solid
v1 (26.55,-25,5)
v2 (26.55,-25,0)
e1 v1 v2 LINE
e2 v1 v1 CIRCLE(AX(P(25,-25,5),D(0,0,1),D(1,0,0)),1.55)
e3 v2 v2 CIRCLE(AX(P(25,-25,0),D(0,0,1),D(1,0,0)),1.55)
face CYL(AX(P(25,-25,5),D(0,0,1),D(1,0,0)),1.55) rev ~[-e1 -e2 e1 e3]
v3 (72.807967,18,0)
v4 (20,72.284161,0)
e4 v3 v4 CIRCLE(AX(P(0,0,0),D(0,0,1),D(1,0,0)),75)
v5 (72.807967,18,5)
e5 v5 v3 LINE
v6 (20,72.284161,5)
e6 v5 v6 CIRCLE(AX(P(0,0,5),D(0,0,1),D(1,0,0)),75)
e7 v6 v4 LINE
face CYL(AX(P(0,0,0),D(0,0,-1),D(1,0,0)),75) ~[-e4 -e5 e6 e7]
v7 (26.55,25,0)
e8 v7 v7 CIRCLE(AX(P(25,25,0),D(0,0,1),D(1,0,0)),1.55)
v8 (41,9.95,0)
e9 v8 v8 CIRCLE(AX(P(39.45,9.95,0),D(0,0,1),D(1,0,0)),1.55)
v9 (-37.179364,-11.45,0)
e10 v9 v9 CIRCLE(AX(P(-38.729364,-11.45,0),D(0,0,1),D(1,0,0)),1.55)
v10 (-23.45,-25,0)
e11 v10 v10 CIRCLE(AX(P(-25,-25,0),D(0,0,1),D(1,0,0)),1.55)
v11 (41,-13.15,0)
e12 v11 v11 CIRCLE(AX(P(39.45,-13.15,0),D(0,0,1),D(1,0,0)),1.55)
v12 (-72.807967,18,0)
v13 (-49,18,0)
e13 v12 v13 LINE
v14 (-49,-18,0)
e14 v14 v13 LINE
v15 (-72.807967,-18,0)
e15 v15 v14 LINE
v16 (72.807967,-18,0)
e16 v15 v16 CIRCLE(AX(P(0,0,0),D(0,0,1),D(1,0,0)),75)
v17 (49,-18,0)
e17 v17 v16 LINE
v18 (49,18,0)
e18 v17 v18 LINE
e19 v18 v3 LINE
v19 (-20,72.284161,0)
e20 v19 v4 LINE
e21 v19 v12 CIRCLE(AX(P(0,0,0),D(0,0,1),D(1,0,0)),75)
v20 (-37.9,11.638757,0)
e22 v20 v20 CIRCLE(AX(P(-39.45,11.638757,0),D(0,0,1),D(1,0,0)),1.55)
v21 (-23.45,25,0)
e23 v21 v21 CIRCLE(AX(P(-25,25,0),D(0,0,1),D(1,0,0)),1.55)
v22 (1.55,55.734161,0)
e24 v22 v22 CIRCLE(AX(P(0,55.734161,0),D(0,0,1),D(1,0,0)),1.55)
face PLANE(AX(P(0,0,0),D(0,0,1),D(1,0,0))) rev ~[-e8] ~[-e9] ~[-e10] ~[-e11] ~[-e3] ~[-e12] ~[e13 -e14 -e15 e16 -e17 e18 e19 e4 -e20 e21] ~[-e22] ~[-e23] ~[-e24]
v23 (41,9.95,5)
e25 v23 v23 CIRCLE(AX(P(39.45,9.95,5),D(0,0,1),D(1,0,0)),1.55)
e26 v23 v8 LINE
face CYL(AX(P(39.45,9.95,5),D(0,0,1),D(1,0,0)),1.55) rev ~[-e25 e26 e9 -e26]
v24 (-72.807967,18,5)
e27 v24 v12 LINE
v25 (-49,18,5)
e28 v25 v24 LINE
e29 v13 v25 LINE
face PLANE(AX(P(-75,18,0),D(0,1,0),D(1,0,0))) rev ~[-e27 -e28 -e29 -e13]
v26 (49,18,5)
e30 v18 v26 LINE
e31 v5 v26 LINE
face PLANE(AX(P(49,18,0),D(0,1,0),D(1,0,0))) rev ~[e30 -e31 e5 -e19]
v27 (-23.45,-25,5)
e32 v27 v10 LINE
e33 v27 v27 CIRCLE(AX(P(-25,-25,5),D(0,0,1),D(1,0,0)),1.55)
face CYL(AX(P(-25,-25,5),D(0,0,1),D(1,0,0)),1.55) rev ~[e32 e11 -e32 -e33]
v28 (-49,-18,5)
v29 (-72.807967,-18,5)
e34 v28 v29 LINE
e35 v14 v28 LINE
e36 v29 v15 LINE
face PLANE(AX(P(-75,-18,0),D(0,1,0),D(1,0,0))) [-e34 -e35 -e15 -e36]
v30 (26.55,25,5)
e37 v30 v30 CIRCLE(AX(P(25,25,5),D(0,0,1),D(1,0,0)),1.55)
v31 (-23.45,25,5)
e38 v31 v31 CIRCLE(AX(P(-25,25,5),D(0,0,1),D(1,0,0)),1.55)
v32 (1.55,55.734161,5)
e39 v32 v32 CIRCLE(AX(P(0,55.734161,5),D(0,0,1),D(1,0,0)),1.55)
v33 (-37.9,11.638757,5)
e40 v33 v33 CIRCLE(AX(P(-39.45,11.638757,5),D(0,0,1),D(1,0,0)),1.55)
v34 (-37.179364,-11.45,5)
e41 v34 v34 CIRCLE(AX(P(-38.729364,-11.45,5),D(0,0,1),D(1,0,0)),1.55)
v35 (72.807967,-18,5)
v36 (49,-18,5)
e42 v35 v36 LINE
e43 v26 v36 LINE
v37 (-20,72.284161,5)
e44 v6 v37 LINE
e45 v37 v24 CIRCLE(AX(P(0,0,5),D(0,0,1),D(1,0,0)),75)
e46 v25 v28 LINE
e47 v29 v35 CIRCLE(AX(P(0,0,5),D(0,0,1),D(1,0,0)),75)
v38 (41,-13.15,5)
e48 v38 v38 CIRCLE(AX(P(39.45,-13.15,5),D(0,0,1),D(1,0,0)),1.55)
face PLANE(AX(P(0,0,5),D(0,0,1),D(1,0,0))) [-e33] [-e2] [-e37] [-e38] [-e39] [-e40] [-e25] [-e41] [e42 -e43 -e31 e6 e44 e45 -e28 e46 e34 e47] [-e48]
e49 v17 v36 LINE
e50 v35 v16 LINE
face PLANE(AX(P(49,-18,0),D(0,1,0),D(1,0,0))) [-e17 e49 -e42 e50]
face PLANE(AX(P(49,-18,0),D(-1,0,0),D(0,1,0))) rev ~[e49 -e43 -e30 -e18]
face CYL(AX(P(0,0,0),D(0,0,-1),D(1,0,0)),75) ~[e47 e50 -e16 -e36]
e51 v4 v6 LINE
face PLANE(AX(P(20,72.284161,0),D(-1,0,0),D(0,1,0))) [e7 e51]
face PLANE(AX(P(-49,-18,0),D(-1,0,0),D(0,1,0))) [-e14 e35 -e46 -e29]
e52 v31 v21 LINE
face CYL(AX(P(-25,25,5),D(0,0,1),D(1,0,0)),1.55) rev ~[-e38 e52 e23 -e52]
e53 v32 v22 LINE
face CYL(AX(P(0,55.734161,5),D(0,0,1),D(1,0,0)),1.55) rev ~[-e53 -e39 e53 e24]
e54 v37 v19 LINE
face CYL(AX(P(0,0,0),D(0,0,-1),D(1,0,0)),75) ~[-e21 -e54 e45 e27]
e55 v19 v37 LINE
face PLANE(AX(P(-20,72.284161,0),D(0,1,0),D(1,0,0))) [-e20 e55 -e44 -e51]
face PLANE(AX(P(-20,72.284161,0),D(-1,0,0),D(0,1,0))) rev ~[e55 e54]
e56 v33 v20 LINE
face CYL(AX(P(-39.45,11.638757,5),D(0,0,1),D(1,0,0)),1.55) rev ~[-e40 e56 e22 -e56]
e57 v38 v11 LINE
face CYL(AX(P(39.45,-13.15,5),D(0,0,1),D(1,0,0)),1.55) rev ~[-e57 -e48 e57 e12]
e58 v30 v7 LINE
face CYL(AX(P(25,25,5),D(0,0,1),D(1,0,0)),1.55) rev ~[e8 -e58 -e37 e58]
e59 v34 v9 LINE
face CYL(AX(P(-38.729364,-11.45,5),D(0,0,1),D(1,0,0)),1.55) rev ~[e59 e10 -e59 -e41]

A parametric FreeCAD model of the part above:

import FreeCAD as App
import Part
import Sketcher

V = App.Vector


def add_polygon(sketch, points):
    """Adds a closed chain of lines whose ends are joined by coincident constraints."""
    first, n = sketch.GeometryCount, len(points)
    for a, b in zip(points, points[1:] + points[:1]):
        sketch.addGeometry(Part.LineSegment(App.Vector(*a, 0), App.Vector(*b, 0)), False)
    for i in range(n):
        sketch.addConstraint(Sketcher.Constraint("Coincident", first + i, 2, first + (i + 1) % n, 1))

doc = App.newDocument("Part")
body = doc.addObject("PartDesign::Body", "Body")

sketch1 = body.newObject("Sketcher::SketchObject", "Sketch")
sketch1.AttachmentSupport = (doc.getObject("XY_Plane"), [""])
sketch1.MapMode = "FlatFace"
sketch1.addGeometry(Part.Circle(V(0, 0, 0), V(0, 0, 1), 75), False)
sketch1.addConstraint([
    Sketcher.Constraint("Coincident", 0, 3, -1, 1),
    Sketcher.Constraint("Diameter", 0, 150.0),
])
pad1 = body.newObject("PartDesign::Pad", "Pad")
pad1.Profile = sketch1
pad1.Length = 5

sketch2 = body.newObject("Sketcher::SketchObject", "Sketch001")
sketch2.AttachmentSupport = (doc.getObject("XY_Plane"), [""])
sketch2.MapMode = "FlatFace"
add_polygon(sketch2, [(49, 18), (49, -18), (75, -18), (75, 18)])
sketch2.addConstraint([
    Sketcher.Constraint("Vertical", 0),
    Sketcher.Constraint("Horizontal", 1),
    Sketcher.Constraint("Vertical", 2),
    Sketcher.Constraint("Horizontal", 3),
    Sketcher.Constraint("DistanceX", 1, 1, 1, 2, 26.0),
    Sketcher.Constraint("DistanceY", 0, 2, 0, 1, 36.0),
    Sketcher.Constraint("DistanceX", -1, 1, 0, 2, 49.0),
    Sketcher.Constraint("DistanceY", 0, 2, -1, 1, 18.0),
])
pocket1 = body.newObject("PartDesign::Pocket", "Pocket")
pocket1.Profile = sketch2
pocket1.Length = 25
pocket1.Reversed = True

sketch3 = body.newObject("Sketcher::SketchObject", "Sketch002")
sketch3.AttachmentSupport = (doc.getObject("XY_Plane"), [""])
sketch3.MapMode = "FlatFace"
add_polygon(sketch3, [(-75, 18), (-75, -18), (-49, -18), (-49, 18)])
sketch3.addConstraint([
    Sketcher.Constraint("Vertical", 0),
    Sketcher.Constraint("Horizontal", 1),
    Sketcher.Constraint("Vertical", 2),
    Sketcher.Constraint("Horizontal", 3),
    Sketcher.Constraint("DistanceX", 1, 1, 1, 2, 26.0),
    Sketcher.Constraint("DistanceY", 0, 2, 0, 1, 36.0),
    Sketcher.Constraint("DistanceX", 0, 2, -1, 1, 75.0),
    Sketcher.Constraint("DistanceY", 0, 2, -1, 1, 18.0),
])
pocket2 = body.newObject("PartDesign::Pocket", "Pocket001")
pocket2.Profile = sketch3
pocket2.Length = 25
pocket2.Reversed = True

sketch4 = body.newObject("Sketcher::SketchObject", "Sketch003")
sketch4.AttachmentSupport = (doc.getObject("XY_Plane"), [""])
sketch4.MapMode = "FlatFace"
add_polygon(sketch4, [(-20, 78), (-20, 72), (20, 72), (20, 78)])
sketch4.addConstraint([
    Sketcher.Constraint("Vertical", 0),
    Sketcher.Constraint("Horizontal", 1),
    Sketcher.Constraint("Vertical", 2),
    Sketcher.Constraint("Horizontal", 3),
    Sketcher.Constraint("DistanceX", 1, 1, 1, 2, 40.0),
    Sketcher.Constraint("DistanceX", 0, 2, -1, 1, 20.0),
    Sketcher.Constraint("DistanceY", 0, 2, 0, 1, 5.71822),
    Sketcher.Constraint("DistanceY", -1, 1, 0, 2, 72.284161),
])
pocket3 = body.newObject("PartDesign::Pocket", "Pocket002")
pocket3.Profile = sketch4
pocket3.Length = 25
pocket3.Reversed = True

sketch5 = body.newObject("Sketcher::SketchObject", "Sketch004")
sketch5.AttachmentSupport = (doc.getObject("XY_Plane"), [""])
sketch5.MapMode = "FlatFace"
sketch5.AttachmentOffset = App.Placement(V(0, 0, 5), App.Rotation())
sketch5.addGeometry([
    Part.Circle(V(-25, -25, 0), V(0, 0, 1), 1.6),
    Part.Circle(V(-25, 25, 0), V(0, 0, 1), 1.6),
    Part.Circle(V(25, 25, 0), V(0, 0, 1), 1.6),
    Part.Circle(V(25, -25, 0), V(0, 0, 1), 1.6),
], False)
sketch5.addConstraint([
    Sketcher.Constraint("Equal", 0, 1),
    Sketcher.Constraint("Equal", 1, 2),
    Sketcher.Constraint("Equal", 2, 3),
    Sketcher.Constraint("Symmetric", 0, 3, 2, 3, -1, 1),
    Sketcher.Constraint("Symmetric", 1, 3, 3, 3, -1, 1),
    Sketcher.Constraint("Symmetric", 1, 3, 2, 3, -2),
    Sketcher.Constraint("Diameter", 0, 3.1),
    Sketcher.Constraint("DistanceX", 0, 3, -1, 1, 25.0),
    Sketcher.Constraint("DistanceY", 0, 3, -1, 1, 25.0),
])
pocket4 = body.newObject("PartDesign::Pocket", "Pocket003")
pocket4.Profile = sketch5
pocket4.Length = 25

sketch6 = body.newObject("Sketcher::SketchObject", "Sketch005")
sketch6.AttachmentSupport = (doc.getObject("XY_Plane"), [""])
sketch6.MapMode = "FlatFace"
sketch6.AttachmentOffset = App.Placement(V(0, 0, 5), App.Rotation())
sketch6.addGeometry([
    Part.Circle(V(39.5, 9.9, 0), V(0, 0, 1), 1.6),
    Part.Circle(V(39.5, -13.2, 0), V(0, 0, 1), 1.6),
], False)
sketch6.addConstraint([
    Sketcher.Constraint("Equal", 0, 1),
    Sketcher.Constraint("Vertical", 0, 3, 1, 3),
    Sketcher.Constraint("Diameter", 0, 3.1),
    Sketcher.Constraint("DistanceY", 1, 3, 0, 3, 23.1),
    Sketcher.Constraint("DistanceX", -1, 1, 0, 3, 39.45),
    Sketcher.Constraint("DistanceY", -1, 1, 0, 3, 9.95),
])
pocket5 = body.newObject("PartDesign::Pocket", "Pocket004")
pocket5.Profile = sketch6
pocket5.Length = 25

sketch7 = body.newObject("Sketcher::SketchObject", "Sketch006")
sketch7.AttachmentSupport = (doc.getObject("XY_Plane"), [""])
sketch7.MapMode = "FlatFace"
sketch7.AttachmentOffset = App.Placement(V(0, 0, 5), App.Rotation())
sketch7.addGeometry([
    Part.Circle(V(-39.5, 11.6, 0), V(0, 0, 1), 1.6),
    Part.Circle(V(-38.7, -11.4, 0), V(0, 0, 1), 1.6),
], False)
sketch7.addConstraint([
    Sketcher.Constraint("Equal", 0, 1),
    Sketcher.Constraint("Diameter", 0, 3.1),
    Sketcher.Constraint("DistanceX", 0, 3, -1, 1, 39.45),
    Sketcher.Constraint("DistanceY", 1, 3, -1, 1, 11.45),
    Sketcher.Constraint("DistanceY", -1, 1, 0, 3, 11.638757),
    Sketcher.Constraint("DistanceX", 1, 3, -1, 1, 38.729364),
])
pocket6 = body.newObject("PartDesign::Pocket", "Pocket005")
pocket6.Profile = sketch7
pocket6.Length = 25

sketch8 = body.newObject("Sketcher::SketchObject", "Sketch007")
sketch8.AttachmentSupport = (doc.getObject("XY_Plane"), [""])
sketch8.MapMode = "FlatFace"
sketch8.AttachmentOffset = App.Placement(V(0, 0, 5), App.Rotation())
sketch8.addGeometry(Part.Circle(V(0, 55.7, 0), V(0, 0, 1), 1.6), False)
sketch8.addConstraint([
    Sketcher.Constraint("PointOnObject", 0, 3, -2),
    Sketcher.Constraint("Diameter", 0, 3.1),
    Sketcher.Constraint("DistanceY", -1, 1, 0, 3, 55.734161),
])
pocket7 = body.newObject("PartDesign::Pocket", "Pocket006")
pocket7.Profile = sketch8
pocket7.Length = 25

doc.recompute()
